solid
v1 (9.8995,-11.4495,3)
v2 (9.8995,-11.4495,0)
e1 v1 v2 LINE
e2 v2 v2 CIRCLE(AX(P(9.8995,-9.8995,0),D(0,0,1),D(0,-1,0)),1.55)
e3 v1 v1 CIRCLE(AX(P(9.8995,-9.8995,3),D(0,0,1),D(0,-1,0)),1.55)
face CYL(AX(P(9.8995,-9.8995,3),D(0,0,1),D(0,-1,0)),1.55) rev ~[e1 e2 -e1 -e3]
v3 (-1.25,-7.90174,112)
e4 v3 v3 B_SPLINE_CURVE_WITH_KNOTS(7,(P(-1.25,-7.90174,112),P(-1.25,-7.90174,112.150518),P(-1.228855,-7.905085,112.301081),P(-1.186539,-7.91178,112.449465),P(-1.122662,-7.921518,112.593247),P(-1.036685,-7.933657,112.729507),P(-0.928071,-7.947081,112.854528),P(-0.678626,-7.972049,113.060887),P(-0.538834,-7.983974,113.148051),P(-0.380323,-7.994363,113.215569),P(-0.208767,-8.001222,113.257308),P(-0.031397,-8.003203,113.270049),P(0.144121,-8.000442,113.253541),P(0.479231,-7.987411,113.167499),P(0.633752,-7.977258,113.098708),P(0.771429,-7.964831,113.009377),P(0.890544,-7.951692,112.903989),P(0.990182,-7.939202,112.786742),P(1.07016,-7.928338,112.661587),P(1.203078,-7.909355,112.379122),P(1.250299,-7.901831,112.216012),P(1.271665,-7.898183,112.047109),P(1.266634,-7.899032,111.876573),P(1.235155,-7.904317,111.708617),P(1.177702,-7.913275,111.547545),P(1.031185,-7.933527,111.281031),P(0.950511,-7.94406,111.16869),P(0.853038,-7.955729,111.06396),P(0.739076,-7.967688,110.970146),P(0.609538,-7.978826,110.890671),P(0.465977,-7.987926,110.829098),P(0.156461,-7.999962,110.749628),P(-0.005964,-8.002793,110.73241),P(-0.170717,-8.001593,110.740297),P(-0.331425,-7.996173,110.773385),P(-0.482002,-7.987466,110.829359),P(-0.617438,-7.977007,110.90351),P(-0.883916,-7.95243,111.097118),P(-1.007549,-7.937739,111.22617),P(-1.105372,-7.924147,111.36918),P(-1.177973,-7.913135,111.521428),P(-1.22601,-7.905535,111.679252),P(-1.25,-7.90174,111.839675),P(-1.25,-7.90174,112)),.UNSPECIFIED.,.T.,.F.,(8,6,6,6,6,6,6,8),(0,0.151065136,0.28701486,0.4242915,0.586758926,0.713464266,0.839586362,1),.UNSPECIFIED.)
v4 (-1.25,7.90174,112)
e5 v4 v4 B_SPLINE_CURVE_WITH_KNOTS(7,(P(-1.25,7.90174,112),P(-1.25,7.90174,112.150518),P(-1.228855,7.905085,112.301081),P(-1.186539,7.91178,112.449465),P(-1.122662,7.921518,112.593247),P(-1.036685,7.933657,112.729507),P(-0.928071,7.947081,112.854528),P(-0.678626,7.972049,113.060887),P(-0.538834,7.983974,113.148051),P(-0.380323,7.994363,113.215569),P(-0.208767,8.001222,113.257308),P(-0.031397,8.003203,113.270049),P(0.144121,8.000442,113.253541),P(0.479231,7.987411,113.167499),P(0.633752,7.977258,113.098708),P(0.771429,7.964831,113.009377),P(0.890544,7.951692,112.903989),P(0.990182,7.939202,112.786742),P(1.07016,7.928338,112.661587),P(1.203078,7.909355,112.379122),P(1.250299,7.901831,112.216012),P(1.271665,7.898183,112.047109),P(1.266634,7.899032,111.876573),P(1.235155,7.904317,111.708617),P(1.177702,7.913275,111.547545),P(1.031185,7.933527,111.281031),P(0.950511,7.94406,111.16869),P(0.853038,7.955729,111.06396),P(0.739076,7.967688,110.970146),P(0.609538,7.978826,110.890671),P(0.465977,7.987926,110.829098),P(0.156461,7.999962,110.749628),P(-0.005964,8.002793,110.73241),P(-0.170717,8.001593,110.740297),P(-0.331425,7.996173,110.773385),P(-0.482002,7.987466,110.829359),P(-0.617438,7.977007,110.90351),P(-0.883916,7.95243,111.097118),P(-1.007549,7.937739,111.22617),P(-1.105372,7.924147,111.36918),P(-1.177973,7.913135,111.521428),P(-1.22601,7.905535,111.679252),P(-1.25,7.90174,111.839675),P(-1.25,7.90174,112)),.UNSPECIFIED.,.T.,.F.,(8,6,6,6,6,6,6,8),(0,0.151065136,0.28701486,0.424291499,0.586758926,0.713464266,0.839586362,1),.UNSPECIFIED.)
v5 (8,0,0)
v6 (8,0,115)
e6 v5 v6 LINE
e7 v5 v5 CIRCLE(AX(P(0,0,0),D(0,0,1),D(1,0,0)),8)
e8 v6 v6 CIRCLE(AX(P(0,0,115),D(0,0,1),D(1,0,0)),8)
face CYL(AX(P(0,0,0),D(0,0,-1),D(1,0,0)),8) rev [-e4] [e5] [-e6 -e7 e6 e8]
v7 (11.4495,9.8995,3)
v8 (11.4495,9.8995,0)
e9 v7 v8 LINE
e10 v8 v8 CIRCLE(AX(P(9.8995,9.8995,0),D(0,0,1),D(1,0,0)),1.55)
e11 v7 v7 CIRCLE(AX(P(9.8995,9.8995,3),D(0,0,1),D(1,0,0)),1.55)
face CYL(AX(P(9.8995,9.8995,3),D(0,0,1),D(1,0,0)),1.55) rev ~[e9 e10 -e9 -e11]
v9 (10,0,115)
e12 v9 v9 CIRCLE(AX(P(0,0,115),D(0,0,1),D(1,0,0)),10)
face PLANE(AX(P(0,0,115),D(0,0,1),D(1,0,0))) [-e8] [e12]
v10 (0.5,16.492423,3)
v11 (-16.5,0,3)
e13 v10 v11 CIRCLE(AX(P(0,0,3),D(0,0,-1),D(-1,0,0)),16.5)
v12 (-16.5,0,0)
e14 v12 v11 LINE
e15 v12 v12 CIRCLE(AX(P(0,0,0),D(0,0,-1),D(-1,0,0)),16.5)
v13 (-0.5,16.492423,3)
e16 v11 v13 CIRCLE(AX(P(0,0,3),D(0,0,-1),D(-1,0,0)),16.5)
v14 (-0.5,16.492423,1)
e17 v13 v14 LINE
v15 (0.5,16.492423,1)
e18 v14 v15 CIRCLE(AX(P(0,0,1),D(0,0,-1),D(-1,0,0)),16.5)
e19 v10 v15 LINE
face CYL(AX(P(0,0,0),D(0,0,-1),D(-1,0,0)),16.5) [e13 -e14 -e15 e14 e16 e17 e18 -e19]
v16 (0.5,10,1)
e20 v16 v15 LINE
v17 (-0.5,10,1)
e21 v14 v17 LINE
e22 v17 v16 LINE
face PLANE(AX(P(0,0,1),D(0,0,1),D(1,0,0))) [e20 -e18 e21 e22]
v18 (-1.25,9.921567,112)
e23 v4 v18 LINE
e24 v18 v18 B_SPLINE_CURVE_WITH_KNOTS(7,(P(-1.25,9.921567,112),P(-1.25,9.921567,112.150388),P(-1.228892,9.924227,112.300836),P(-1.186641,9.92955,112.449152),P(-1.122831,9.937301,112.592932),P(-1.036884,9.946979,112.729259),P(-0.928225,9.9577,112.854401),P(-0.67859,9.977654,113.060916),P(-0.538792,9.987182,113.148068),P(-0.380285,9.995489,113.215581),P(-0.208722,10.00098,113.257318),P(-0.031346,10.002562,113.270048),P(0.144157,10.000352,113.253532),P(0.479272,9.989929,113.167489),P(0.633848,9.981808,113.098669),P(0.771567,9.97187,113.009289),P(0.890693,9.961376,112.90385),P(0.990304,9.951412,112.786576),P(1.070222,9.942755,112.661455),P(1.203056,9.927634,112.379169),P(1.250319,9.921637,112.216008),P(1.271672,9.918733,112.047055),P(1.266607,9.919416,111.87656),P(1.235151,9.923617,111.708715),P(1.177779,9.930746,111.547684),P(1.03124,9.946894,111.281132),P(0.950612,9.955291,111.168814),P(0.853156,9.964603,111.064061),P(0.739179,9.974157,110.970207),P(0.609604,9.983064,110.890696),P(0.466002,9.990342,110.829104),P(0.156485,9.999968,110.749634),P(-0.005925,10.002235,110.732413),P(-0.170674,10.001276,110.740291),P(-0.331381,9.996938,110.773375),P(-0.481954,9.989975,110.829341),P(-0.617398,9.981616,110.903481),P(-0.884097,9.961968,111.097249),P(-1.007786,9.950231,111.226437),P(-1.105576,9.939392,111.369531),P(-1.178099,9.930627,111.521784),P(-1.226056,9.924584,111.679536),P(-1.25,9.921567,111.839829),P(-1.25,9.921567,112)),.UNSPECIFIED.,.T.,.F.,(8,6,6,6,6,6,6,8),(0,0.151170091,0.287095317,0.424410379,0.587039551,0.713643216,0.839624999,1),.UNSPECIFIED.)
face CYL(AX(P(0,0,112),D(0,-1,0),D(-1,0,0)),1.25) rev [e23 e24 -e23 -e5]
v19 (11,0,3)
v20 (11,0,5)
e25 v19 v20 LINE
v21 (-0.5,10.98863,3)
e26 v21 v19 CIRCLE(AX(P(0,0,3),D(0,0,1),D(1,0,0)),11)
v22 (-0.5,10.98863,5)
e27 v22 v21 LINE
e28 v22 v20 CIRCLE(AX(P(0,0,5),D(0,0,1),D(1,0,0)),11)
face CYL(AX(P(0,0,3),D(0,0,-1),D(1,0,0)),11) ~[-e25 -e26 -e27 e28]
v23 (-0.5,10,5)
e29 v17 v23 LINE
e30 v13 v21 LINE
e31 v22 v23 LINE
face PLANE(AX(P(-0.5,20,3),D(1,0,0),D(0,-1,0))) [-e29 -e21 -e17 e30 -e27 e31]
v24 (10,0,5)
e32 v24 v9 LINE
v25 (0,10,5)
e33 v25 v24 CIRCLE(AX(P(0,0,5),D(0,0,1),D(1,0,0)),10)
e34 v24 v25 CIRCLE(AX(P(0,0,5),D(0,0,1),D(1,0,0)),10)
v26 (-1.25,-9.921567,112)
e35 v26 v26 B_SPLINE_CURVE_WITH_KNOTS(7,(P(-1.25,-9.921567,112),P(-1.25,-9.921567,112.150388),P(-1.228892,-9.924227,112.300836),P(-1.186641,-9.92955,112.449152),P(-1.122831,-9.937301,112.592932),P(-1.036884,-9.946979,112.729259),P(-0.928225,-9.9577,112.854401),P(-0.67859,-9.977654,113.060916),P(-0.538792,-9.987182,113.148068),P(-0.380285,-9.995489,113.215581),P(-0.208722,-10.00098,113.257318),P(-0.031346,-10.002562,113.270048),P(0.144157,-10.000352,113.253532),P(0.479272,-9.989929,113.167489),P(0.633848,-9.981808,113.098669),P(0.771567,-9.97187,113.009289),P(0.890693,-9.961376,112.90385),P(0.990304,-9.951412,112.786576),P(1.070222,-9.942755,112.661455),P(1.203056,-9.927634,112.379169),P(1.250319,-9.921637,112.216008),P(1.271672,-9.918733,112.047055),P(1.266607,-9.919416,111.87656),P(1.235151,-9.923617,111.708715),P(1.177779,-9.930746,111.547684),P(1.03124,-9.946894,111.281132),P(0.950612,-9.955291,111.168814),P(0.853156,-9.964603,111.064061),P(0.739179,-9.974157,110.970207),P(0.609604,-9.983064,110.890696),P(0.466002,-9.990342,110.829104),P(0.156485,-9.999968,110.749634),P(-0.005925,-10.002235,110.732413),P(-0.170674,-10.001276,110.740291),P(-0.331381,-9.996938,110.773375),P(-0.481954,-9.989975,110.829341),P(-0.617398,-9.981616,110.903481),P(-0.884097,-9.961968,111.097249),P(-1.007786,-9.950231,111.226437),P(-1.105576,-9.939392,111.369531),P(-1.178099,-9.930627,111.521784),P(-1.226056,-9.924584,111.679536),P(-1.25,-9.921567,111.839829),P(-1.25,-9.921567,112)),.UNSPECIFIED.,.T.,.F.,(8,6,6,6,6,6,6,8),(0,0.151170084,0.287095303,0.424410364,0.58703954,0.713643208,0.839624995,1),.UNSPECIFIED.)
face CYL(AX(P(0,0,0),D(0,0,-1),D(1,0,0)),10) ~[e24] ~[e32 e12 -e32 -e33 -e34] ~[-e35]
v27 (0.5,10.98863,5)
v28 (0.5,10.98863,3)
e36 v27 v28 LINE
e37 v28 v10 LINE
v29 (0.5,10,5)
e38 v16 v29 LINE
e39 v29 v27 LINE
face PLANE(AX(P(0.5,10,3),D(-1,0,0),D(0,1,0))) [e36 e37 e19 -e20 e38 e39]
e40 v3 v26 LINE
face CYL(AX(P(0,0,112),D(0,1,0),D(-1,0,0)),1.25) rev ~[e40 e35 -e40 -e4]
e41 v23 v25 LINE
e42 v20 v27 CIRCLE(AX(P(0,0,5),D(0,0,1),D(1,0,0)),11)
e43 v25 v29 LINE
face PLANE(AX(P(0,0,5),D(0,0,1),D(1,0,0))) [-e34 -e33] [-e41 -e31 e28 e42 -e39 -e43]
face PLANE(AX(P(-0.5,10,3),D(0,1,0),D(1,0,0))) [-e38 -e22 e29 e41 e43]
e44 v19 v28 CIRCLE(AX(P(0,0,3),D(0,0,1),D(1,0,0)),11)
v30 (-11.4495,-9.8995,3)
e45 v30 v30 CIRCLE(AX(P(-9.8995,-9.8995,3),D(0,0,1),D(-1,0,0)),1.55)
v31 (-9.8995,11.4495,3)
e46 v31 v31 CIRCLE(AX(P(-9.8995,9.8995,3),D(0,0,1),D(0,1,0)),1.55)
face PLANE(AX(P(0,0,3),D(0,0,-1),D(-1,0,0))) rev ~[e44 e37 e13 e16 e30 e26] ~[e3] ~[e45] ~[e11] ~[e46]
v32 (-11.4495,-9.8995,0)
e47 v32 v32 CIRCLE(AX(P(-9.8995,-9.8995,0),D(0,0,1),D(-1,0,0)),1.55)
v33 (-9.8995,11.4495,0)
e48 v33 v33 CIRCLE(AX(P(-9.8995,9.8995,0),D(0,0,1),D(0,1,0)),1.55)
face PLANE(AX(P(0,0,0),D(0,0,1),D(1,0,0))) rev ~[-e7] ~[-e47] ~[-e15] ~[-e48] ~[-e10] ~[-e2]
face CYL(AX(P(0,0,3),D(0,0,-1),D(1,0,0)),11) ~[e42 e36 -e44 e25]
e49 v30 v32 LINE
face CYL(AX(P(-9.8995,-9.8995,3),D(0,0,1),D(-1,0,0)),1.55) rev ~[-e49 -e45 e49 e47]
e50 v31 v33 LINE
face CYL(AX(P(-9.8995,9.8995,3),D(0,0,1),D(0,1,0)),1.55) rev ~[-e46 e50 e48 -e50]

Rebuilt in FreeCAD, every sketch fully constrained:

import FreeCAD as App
import Part
import Sketcher
from FreeCAD import Vector
Q = App.Units.Quantity

doc = App.newDocument("Part")
body = doc.addObject("PartDesign::Body", "Body")

# Sketch on XY plane
sketch1 = doc.addObject("Sketcher::SketchObject", "Sketch")
body.addObject(sketch1)
sketch1.AttachmentSupport = (doc.XY_Plane, [""])
sketch1.MapMode = "FlatFace"
sketch1.addGeometry([
    Part.Circle(Vector(0, 0, 0), Vector(0, 0, 1), 10),
    Part.Circle(Vector(0, 0, 0), Vector(0, 0, 1), 8),
], False)
sketch1.addConstraint([
    Sketcher.Constraint("Coincident", 0, 3, -1, 1),
    Sketcher.Constraint("Coincident", 1, 3, -1, 1),
    Sketcher.Constraint("Diameter", 0, Q("20 mm")),
    Sketcher.Constraint("Diameter", 1, Q("16 mm")),
])
pad1 = doc.addObject("PartDesign::Pad", "Pad")
body.addObject(pad1)
pad1.Profile = sketch1
pad1.Length = 115

# Sketch on XY plane
sketch2 = doc.addObject("Sketcher::SketchObject", "Sketch001")
body.addObject(sketch2)
sketch2.AttachmentSupport = (doc.XY_Plane, [""])
sketch2.MapMode = "FlatFace"
sketch2.addGeometry([
    Part.Circle(Vector(0, 0, 0), Vector(0, 0, 1), 16),
    Part.Circle(Vector(0, 0, 0), Vector(0, 0, 1), 8),
], False)
sketch2.addConstraint([
    Sketcher.Constraint("Coincident", 0, 3, -1, 1),
    Sketcher.Constraint("Coincident", 1, 3, -1, 1),
    Sketcher.Constraint("Diameter", 0, Q("33 mm")),
    Sketcher.Constraint("Diameter", 1, Q("16 mm")),
])
pad2 = doc.addObject("PartDesign::Pad", "Pad001")
body.addObject(pad2)
pad2.Profile = sketch2
pad2.Length = 3

# Sketch on XY plane
sketch3 = doc.addObject("Sketcher::SketchObject", "Sketch002")
body.addObject(sketch3)
sketch3.AttachmentSupport = (doc.XY_Plane, [""])
sketch3.MapMode = "FlatFace"
sketch3.AttachmentOffset = App.Placement(Vector(0, 0, 3), App.Rotation())
sketch3.addGeometry(Part.Circle(Vector(9.9, 9.9, 0), Vector(0, 0, 1), 1.6), False)
sketch3.addConstraint([
    Sketcher.Constraint("Diameter", 0, Q("3.1 mm")),
    Sketcher.Constraint("DistanceX", -1, 1, 0, 3, Q("9.8995 mm")),
    Sketcher.Constraint("DistanceY", -1, 1, 0, 3, Q("9.8995 mm")),
])
pocket1 = doc.addObject("PartDesign::Pocket", "Pocket")
body.addObject(pocket1)
pocket1.Profile = sketch3
pocket1.Type = "ThroughAll"

# Sketch on XY plane
sketch4 = doc.addObject("Sketcher::SketchObject", "Sketch003")
body.addObject(sketch4)
sketch4.AttachmentSupport = (doc.XY_Plane, [""])
sketch4.MapMode = "FlatFace"
sketch4.AttachmentOffset = App.Placement(Vector(0, 0, 3), App.Rotation())
sketch4.addGeometry([
    Part.Circle(Vector(0, 0, 0), Vector(0, 0, 1), 11),
    Part.Circle(Vector(0, 0, 0), Vector(0, 0, 1), 10),
], False)
sketch4.addConstraint([
    Sketcher.Constraint("Coincident", 0, 3, -1, 1),
    Sketcher.Constraint("Coincident", 1, 3, -1, 1),
    Sketcher.Constraint("Diameter", 0, Q("22 mm")),
    Sketcher.Constraint("Diameter", 1, Q("20 mm")),
])
pad3 = doc.addObject("PartDesign::Pad", "Pad002")
body.addObject(pad3)
pad3.Profile = sketch4
pad3.Length = 2
doc.recompute()

polarpattern = doc.addObject("PartDesign::PolarPattern", "PolarPattern")
body.addObject(polarpattern)
polarpattern.Originals = [pocket1]
polarpattern.Axis = (doc.Z_Axis, [""])
polarpattern.Angle = 360
polarpattern.Occurrences = 4
body.Tip = polarpattern

# Sketch on XY plane
sketch5 = doc.addObject("Sketcher::SketchObject", "Sketch004")
body.addObject(sketch5)
sketch5.AttachmentSupport = (doc.XY_Plane, [""])
sketch5.MapMode = "FlatFace"
sketch5.AttachmentOffset = App.Placement(Vector(0, 0, 3), App.Rotation())
sketch5.addGeometry([
    Part.LineSegment(Vector(-0.5, 20, 0), Vector(-0.5, 10, 0)),
    Part.LineSegment(Vector(-0.5, 10, 0), Vector(0.5, 10, 0)),
    Part.LineSegment(Vector(0.5, 10, 0), Vector(0.5, 20, 0)),
    Part.LineSegment(Vector(0.5, 20, 0), Vector(-0.5, 20, 0)),
], False)
sketch5.addConstraint([
    Sketcher.Constraint("Coincident", 0, 2, 1, 1),
    Sketcher.Constraint("Coincident", 1, 2, 2, 1),
    Sketcher.Constraint("Coincident", 2, 2, 3, 1),
    Sketcher.Constraint("Coincident", 3, 2, 0, 1),
    Sketcher.Constraint("Vertical", 0),
    Sketcher.Constraint("Horizontal", 1),
    Sketcher.Constraint("Vertical", 2),
    Sketcher.Constraint("Horizontal", 3),
    Sketcher.Constraint("DistanceX", 1, 1, 1, 2, Q("1 mm")),
    Sketcher.Constraint("DistanceY", 0, 2, 0, 1, Q("10 mm")),
    Sketcher.Constraint("DistanceY", -1, 1, 0, 2, Q("10 mm")),
    Sketcher.Constraint("DistanceX", 0, 2, -1, 1, Q("0.5 mm")),
])
pocket2 = doc.addObject("PartDesign::Pocket", "Pocket001")
body.addObject(pocket2)
pocket2.Profile = sketch5
pocket2.Type = "TwoLengths"
pocket2.Length = 2
pocket2.Length2 = 2
pocket2.Reversed = True

# Sketch on XZ plane
sketch6 = doc.addObject("Sketcher::SketchObject", "Sketch005")
body.addObject(sketch6)
sketch6.AttachmentSupport = (doc.XZ_Plane, [""])
sketch6.MapMode = "FlatFace"
sketch6.addGeometry(Part.Circle(Vector(0, 112, 0), Vector(0, 0, 1), 1.2), False)
sketch6.addConstraint([
    Sketcher.Constraint("PointOnObject", 0, 3, -2),
    Sketcher.Constraint("Diameter", 0, Q("2.5 mm")),
    Sketcher.Constraint("DistanceY", -1, 1, 0, 3, Q("112 mm")),
])
pocket3 = doc.addObject("PartDesign::Pocket", "Pocket002")
body.addObject(pocket3)
pocket3.Profile = sketch6
pocket3.Type = "ThroughAll"
pocket3.Midplane = True

doc.recompute()
